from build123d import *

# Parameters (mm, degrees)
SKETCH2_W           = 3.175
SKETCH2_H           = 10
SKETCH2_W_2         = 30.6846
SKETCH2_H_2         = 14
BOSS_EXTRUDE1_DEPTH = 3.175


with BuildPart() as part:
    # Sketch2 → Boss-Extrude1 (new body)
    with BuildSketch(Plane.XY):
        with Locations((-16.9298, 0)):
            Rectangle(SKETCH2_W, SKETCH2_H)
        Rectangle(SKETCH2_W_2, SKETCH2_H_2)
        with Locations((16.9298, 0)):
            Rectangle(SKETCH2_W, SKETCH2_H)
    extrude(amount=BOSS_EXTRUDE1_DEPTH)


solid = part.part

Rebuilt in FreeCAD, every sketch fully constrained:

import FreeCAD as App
import Part
import Sketcher
from FreeCAD import Vector
Q = App.Units.Quantity

doc = App.newDocument("Part")
params = doc.addObject("Spreadsheet::Sheet", "Params")
for row, (alias, value) in enumerate([
    ("sketch1_height", "10 mm"),
    ("sketch1_height2", "2 mm"),
    ("pad1_length", "3.175 mm"),
], start=1):
    params.set(f"A{row}", alias)
    params.set(f"B{row}", "=" + value)
    params.setAlias(f"B{row}", alias)

body = doc.addObject("PartDesign::Body", "Body")

sketch1 = body.newObject("Sketcher::SketchObject", "Sketch")
sketch1.AttachmentSupport = (doc.getObject("XY_Plane"), [""])
sketch1.MapMode = "FlatFace"
sketch1.addGeometry([
    Part.LineSegment(Vector(-18.5, 5, 0), Vector(-18.5, -5, 0)),
    Part.LineSegment(Vector(-18.5, -5, 0), Vector(-15.3, -5, 0)),
    Part.LineSegment(Vector(-15.3, -5, 0), Vector(-15.3, -7, 0)),
    Part.LineSegment(Vector(-15.3, -7, 0), Vector(15.3, -7, 0)),
    Part.LineSegment(Vector(15.3, -7, 0), Vector(15.3, -5, 0)),
    Part.LineSegment(Vector(15.3, -5, 0), Vector(18.5, -5, 0)),
    Part.LineSegment(Vector(18.5, -5, 0), Vector(18.5, 5, 0)),
    Part.LineSegment(Vector(18.5, 5, 0), Vector(15.3, 5, 0)),
    Part.LineSegment(Vector(15.3, 5, 0), Vector(15.3, 7, 0)),
    Part.LineSegment(Vector(15.3, 7, 0), Vector(-15.3, 7, 0)),
    Part.LineSegment(Vector(-15.3, 7, 0), Vector(-15.3, 5, 0)),
    Part.LineSegment(Vector(-15.3, 5, 0), Vector(-18.5, 5, 0)),
], False)
sketch1.addConstraint([
    Sketcher.Constraint("Coincident", 0, 2, 1, 1),
    Sketcher.Constraint("Coincident", 1, 2, 2, 1),
    Sketcher.Constraint("Coincident", 2, 2, 3, 1),
    Sketcher.Constraint("Coincident", 3, 2, 4, 1),
    Sketcher.Constraint("Coincident", 4, 2, 5, 1),
    Sketcher.Constraint("Coincident", 5, 2, 6, 1),
    Sketcher.Constraint("Coincident", 6, 2, 7, 1),
    Sketcher.Constraint("Coincident", 7, 2, 8, 1),
    Sketcher.Constraint("Coincident", 8, 2, 9, 1),
    Sketcher.Constraint("Coincident", 9, 2, 10, 1),
    Sketcher.Constraint("Coincident", 10, 2, 11, 1),
    Sketcher.Constraint("Coincident", 11, 2, 0, 1),
    Sketcher.Constraint("Vertical", 0),
    Sketcher.Constraint("Horizontal", 1),
    Sketcher.Constraint("Vertical", 2),
    Sketcher.Constraint("Horizontal", 3),
    Sketcher.Constraint("Vertical", 4),
    Sketcher.Constraint("Horizontal", 5),
    Sketcher.Constraint("Vertical", 6),
    Sketcher.Constraint("Horizontal", 7),
    Sketcher.Constraint("Vertical", 8),
    Sketcher.Constraint("Horizontal", 9),
    Sketcher.Constraint("Vertical", 10),
    Sketcher.Constraint("Horizontal", 11),
    Sketcher.Constraint("Symmetric", 0, 2, 6, 2, -1, 1),
    Sketcher.Constraint("Symmetric", 2, 2, 8, 2, -1, 1),
    Sketcher.Constraint("Symmetric", 4, 2, 10, 2, -1, 1),
    Sketcher.Constraint("Symmetric", 1, 2, 4, 2, -2),
    Sketcher.Constraint("DistanceY", 0, 2, 0, 1, Q("10 mm")),
    Sketcher.Constraint("DistanceY", 2, 2, 2, 1, Q("2 mm")),
    Sketcher.Constraint("DistanceX", 1, 1, 1, 2, Q("3.175 mm")),
    Sketcher.Constraint("DistanceX", 3, 1, 3, 2, Q("30.6846 mm")),
])
sketch1.setExpression("Constraints[28]", "Params.sketch1_height")
sketch1.setExpression("Constraints[29]", "Params.sketch1_height2")
pad1 = body.newObject("PartDesign::Pad", "Pad")
pad1.Profile = sketch1
pad1.setExpression("Length", "Params.pad1_length")

doc.recompute()
